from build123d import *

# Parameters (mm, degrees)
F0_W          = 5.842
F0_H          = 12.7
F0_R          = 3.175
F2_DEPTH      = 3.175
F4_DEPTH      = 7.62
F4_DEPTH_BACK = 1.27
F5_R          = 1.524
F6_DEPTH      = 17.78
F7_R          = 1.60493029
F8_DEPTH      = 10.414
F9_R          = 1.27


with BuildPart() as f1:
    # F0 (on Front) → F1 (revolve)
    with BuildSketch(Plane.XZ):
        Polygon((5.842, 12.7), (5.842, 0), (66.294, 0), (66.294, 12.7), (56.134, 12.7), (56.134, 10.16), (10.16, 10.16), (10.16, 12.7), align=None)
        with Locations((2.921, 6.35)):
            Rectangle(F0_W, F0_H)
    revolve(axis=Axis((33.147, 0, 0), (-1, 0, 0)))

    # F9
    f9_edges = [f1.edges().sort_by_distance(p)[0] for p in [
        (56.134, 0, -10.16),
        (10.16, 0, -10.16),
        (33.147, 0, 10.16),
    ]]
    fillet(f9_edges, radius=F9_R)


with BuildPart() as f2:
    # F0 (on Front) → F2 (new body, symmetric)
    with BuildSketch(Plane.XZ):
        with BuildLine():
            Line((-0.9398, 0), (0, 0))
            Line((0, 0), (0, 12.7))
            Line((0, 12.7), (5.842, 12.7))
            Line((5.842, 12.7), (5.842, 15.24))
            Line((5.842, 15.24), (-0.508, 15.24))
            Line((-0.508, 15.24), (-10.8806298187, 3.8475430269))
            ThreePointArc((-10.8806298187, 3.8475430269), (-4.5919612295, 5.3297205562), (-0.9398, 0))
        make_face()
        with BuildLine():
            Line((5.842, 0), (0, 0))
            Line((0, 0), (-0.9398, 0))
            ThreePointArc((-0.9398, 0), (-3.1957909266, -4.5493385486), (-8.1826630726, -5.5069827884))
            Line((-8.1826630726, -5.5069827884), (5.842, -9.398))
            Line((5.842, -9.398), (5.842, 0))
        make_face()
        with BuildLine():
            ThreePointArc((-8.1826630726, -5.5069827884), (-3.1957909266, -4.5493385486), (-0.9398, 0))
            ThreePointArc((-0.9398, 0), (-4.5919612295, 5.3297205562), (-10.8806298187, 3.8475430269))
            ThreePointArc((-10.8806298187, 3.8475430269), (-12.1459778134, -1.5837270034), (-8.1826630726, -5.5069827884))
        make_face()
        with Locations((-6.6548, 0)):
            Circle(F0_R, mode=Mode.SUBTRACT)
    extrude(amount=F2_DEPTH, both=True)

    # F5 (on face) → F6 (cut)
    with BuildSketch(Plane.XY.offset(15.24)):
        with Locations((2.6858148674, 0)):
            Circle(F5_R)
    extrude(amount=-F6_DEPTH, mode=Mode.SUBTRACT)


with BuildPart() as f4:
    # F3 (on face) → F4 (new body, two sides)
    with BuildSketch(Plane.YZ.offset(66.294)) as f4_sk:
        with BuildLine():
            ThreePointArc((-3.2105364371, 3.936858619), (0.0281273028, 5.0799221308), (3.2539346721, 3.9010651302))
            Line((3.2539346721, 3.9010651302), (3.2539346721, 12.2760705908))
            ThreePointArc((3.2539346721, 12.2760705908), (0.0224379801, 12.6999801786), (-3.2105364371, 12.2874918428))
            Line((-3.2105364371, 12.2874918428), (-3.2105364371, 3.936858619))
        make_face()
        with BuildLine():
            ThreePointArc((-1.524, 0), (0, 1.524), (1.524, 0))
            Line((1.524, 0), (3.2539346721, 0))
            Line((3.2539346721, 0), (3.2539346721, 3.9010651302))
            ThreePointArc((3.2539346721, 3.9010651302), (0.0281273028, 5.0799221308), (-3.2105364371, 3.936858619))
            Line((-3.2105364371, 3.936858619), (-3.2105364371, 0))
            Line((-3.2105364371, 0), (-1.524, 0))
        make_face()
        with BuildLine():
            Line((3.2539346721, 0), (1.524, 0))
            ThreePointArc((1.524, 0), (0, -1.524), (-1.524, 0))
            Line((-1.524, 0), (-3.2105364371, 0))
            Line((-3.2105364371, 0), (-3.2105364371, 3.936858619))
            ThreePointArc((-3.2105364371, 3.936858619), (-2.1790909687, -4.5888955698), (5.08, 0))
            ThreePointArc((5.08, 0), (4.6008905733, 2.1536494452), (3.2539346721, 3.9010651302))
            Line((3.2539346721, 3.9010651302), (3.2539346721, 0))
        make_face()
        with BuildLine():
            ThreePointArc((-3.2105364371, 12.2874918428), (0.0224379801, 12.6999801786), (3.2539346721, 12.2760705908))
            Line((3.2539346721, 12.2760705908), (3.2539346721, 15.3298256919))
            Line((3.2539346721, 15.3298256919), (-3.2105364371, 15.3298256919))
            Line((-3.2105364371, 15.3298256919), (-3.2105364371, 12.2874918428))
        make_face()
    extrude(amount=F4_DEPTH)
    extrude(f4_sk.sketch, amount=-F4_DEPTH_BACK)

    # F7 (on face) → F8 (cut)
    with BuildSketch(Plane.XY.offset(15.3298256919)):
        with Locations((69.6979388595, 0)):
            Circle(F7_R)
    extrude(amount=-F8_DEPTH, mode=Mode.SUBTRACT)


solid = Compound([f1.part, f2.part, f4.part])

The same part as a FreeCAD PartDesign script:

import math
import FreeCAD as App
import Part
import Sketcher
Q = App.Units.Quantity


def edges_at(feature, points):
    """Names of the edges that pass closest to the given points."""
    edges = feature.Shape.Edges
    near = lambda p: min(range(len(edges)), key=lambda i: edges[i].distToShape(Part.Vertex(*p))[0])
    return sorted({f"Edge{near(p) + 1}" for p in points})

doc = App.newDocument("Part")
body = doc.addObject("PartDesign::Body", "Body")

# Sketch on XZ plane
sketch1 = body.newObject("Sketcher::SketchObject", "Sketch")
sketch1.AttachmentSupport = (doc.getObject("XZ_Plane"), [""])
sketch1.MapMode = "FlatFace"
sketch1.addGeometry([
    Part.LineSegment(App.Vector(66.3, 0, 0), App.Vector(66.3, 12.7, 0)),  # 0
    Part.LineSegment(App.Vector(66.3, 12.7, 0), App.Vector(56.1, 12.7, 0)),  # 1
    Part.LineSegment(App.Vector(56.1, 12.7, 0), App.Vector(56.1, 10.2, 0)),  # 2
    Part.LineSegment(App.Vector(56.1, 10.2, 0), App.Vector(10.2, 10.2, 0)),  # 3
    Part.LineSegment(App.Vector(10.2, 10.2, 0), App.Vector(10.2, 12.7, 0)),  # 4
    Part.LineSegment(App.Vector(10.2, 12.7, 0), App.Vector(0, 12.7, 0)),  # 5
    Part.LineSegment(App.Vector(0, 12.7, 0), App.Vector(0, 0, 0)),  # 6
    Part.LineSegment(App.Vector(0, 0, 0), App.Vector(66.3, 0, 0)),  # 7
], False)
sketch1.addConstraint([
    Sketcher.Constraint("Coincident", 0, 2, 1, 1),
    Sketcher.Constraint("Coincident", 1, 2, 2, 1),
    Sketcher.Constraint("Coincident", 2, 2, 3, 1),
    Sketcher.Constraint("Coincident", 3, 2, 4, 1),
    Sketcher.Constraint("Coincident", 4, 2, 5, 1),
    Sketcher.Constraint("Coincident", 5, 2, 6, 1),
    Sketcher.Constraint("Coincident", 6, 2, 7, 1),
    Sketcher.Constraint("Coincident", 7, 2, 0, 1),
    Sketcher.Constraint("Vertical", 0),
    Sketcher.Constraint("Horizontal", 1),
    Sketcher.Constraint("Vertical", 2),
    Sketcher.Constraint("Horizontal", 3),
    Sketcher.Constraint("Vertical", 4),
    Sketcher.Constraint("Horizontal", 5),
    Sketcher.Constraint("Vertical", 6),
    Sketcher.Constraint("Horizontal", 7),
    Sketcher.Constraint("Coincident", 6, 2, -1, 1),
    Sketcher.Constraint("Horizontal", 1, 2, 4, 2),
    Sketcher.Constraint("Equal", 1, 5),
    Sketcher.Constraint("DistanceX", 1, 2, 1, 1, Q("0.4 in")),
    Sketcher.Constraint("DistanceY", 0, 1, 0, 2, Q("0.5 in")),
    Sketcher.Constraint("DistanceY", 2, 2, 2, 1, Q("0.1 in")),
    Sketcher.Constraint("DistanceX", 3, 2, 3, 1, Q("1.81 in")),
])
revolution = body.newObject("PartDesign::Revolution", "Revolution")
revolution.Profile = sketch1
revolution.ReferenceAxis = (sketch1, ["H_Axis"])
revolution.Angle = 360
doc.recompute()

fillet = body.newObject("PartDesign::Fillet", "Fillet")
fillet.Base = (revolution, edges_at(revolution, [(56.134, 0, -10.16), (10.16, 0, -10.16), (33.147, 0, 10.16)]))
fillet.Radius = Q("0.05 in")
body2 = doc.addObject("PartDesign::Body", "Body001")

# Sketch on XZ plane
sketch2 = body2.newObject("Sketcher::SketchObject", "Sketch001")
sketch2.AttachmentSupport = (doc.getObject("XZ_Plane001"), [""])
sketch2.MapMode = "FlatFace"
sketch2.addGeometry([
    Part.LineSegment(App.Vector(0, 0, 0), App.Vector(0, 12.7, 0)),  # 0
    Part.LineSegment(App.Vector(0, 12.7, 0), App.Vector(5.8, 12.7, 0)),  # 1
    Part.LineSegment(App.Vector(5.8, 12.7, 0), App.Vector(5.8, 15.2, 0)),  # 2
    Part.LineSegment(App.Vector(5.8, 15.2, 0), App.Vector(-0.5, 15.2, 0)),  # 3
    Part.LineSegment(App.Vector(-0.5, 15.2, 0), App.Vector(-10.9, 3.8, 0)),  # 4
    Part.ArcOfCircle(Part.Circle(App.Vector(-6.7, 0, 0), App.Vector(0, 0, 1), 5.7), math.radians(138), math.radians(254)),  # 5
    Part.LineSegment(App.Vector(-8.2, -5.5, 0), App.Vector(5.8, -9.4, 0)),  # 6
    Part.LineSegment(App.Vector(5.8, -9.4, 0), App.Vector(5.8, 0, 0)),  # 7
    Part.LineSegment(App.Vector(5.8, 0, 0), App.Vector(0, 0, 0)),  # 8
    Part.Circle(App.Vector(-6.7, 0, 0), App.Vector(0, 0, 1), 3.2),  # 9
], False)
sketch2.addConstraint([
    Sketcher.Constraint("Coincident", 0, 2, 1, 1),
    Sketcher.Constraint("Coincident", 1, 2, 2, 1),
    Sketcher.Constraint("Coincident", 2, 2, 3, 1),
    Sketcher.Constraint("Coincident", 3, 2, 4, 1),
    Sketcher.Constraint("Tangent", 4, 2, 5, 1),
    Sketcher.Constraint("Tangent", 5, 2, 6, 1),
    Sketcher.Constraint("Coincident", 6, 2, 7, 1),
    Sketcher.Constraint("Coincident", 7, 2, 8, 1),
    Sketcher.Constraint("Coincident", 8, 2, 0, 1),
    Sketcher.Constraint("Vertical", 0),
    Sketcher.Constraint("Horizontal", 1),
    Sketcher.Constraint("Vertical", 2),
    Sketcher.Constraint("Horizontal", 3),
    Sketcher.Constraint("Vertical", 7),
    Sketcher.Constraint("Horizontal", 8),
    Sketcher.Constraint("Coincident", 8, 2, -1, 1),
    Sketcher.Constraint("Coincident", 9, 3, 5, 3),
    Sketcher.Constraint("PointOnObject", 5, 3, -1),
    Sketcher.Constraint("Vertical", 2, 2, 6, 2),
    Sketcher.Constraint("Diameter", 9, Q("0.25 in")),
    Sketcher.Constraint("DistanceY", 0, 1, 0, 2, Q("0.5 in")),
    Sketcher.Constraint("DistanceY", 2, 1, 2, 2, Q("0.1 in")),
    Sketcher.Constraint("Radius", 5, Q("0.225 in")),
    Sketcher.Constraint("DistanceX", 1, 1, 1, 2, Q("0.23 in")),
    Sketcher.Constraint("DistanceX", 3, 2, 3, 1, Q("0.25 in")),
    Sketcher.Constraint("DistanceY", 7, 1, 7, 2, Q("0.37 in")),
    Sketcher.Constraint("DistanceX", 5, 3, -1, 1, Q("0.262 in")),
])
pad1 = body2.newObject("PartDesign::Pad", "Pad")
pad1.Profile = sketch2
pad1.Length = Q("0.25 in")
pad1.Midplane = True

# Sketch on XY plane
sketch3 = body2.newObject("Sketcher::SketchObject", "Sketch002")
sketch3.AttachmentSupport = (doc.getObject("XY_Plane001"), [""])
sketch3.MapMode = "FlatFace"
sketch3.AttachmentOffset = App.Placement(App.Vector(0, 0, 0.6 * 25.4), App.Rotation())
sketch3.addGeometry(Part.Circle(App.Vector(2.7, 0, 0), App.Vector(0, 0, 1), 1.5), False)
sketch3.addConstraint([
    Sketcher.Constraint("PointOnObject", 0, 3, -1),
    Sketcher.Constraint("Diameter", 0, Q("0.12 in")),
    Sketcher.Constraint("DistanceX", -1, 1, 0, 3, 2.685815),
])
pocket1 = body2.newObject("PartDesign::Pocket", "Pocket")
pocket1.Profile = sketch3
pocket1.Length = Q("0.7 in")
body3 = doc.addObject("PartDesign::Body", "Body002")

# Sketch on YZ plane
sketch4 = body3.newObject("Sketcher::SketchObject", "Sketch003")
sketch4.AttachmentSupport = (doc.getObject("YZ_Plane002"), [""])
sketch4.MapMode = "FlatFace"
sketch4.AttachmentOffset = App.Placement(App.Vector(0, 0, 2.61 * 25.4), App.Rotation())
sketch4.addGeometry([
    Part.ArcOfCircle(Part.Circle(App.Vector(0, 0, 0), App.Vector(0, 0, 1), 5.1), math.radians(129), math.radians(360)),  # 0
    Part.ArcOfCircle(Part.Circle(App.Vector(0, 0, 0), App.Vector(0, 0, 1), 5.1), math.radians(0), math.radians(50)),  # 1
    Part.LineSegment(App.Vector(3.3, 3.9, 0), App.Vector(3.3, 15.3, 0)),  # 2
    Part.LineSegment(App.Vector(3.3, 15.3, 0), App.Vector(-3.2, 15.3, 0)),  # 3
    Part.LineSegment(App.Vector(-3.2, 15.3, 0), App.Vector(-3.2, 3.9, 0)),  # 4
    Part.Circle(App.Vector(0, 0, 0), App.Vector(0, 0, 1), 1.5),  # 5
], False)
sketch4.addConstraint([
    Sketcher.Constraint("Tangent", 0, 2, 1, 1),
    Sketcher.Constraint("Coincident", 1, 2, 2, 1),
    Sketcher.Constraint("Coincident", 2, 2, 3, 1),
    Sketcher.Constraint("Coincident", 3, 2, 4, 1),
    Sketcher.Constraint("Coincident", 4, 2, 0, 1),
    Sketcher.Constraint("Vertical", 2),
    Sketcher.Constraint("Horizontal", 3),
    Sketcher.Constraint("Vertical", 4),
    Sketcher.Constraint("Coincident", 0, 3, -1, 1),
    Sketcher.Constraint("Coincident", 5, 3, -1, 1),
    Sketcher.Constraint("Equal", 0, 1),
    Sketcher.Constraint("PointOnObject", 0, 2, -1),
    Sketcher.Constraint("Radius", 0, Q("0.2 in")),
    Sketcher.Constraint("Diameter", 5, Q("0.12 in")),
    Sketcher.Constraint("DistanceX", 3, 2, 3, 1, 6.464471),
    Sketcher.Constraint("DistanceY", 2, 1, 2, 2, 11.428761),
    Sketcher.Constraint("DistanceY", 4, 2, 4, 1, 11.392967),
])
pad2 = body3.newObject("PartDesign::Pad", "Pad001")
pad2.Profile = sketch4
pad2.Type = "TwoLengths"
pad2.Length = Q("0.3 in")
pad2.Length2 = Q("0.05 in")

# Sketch on XY plane
sketch5 = body3.newObject("Sketcher::SketchObject", "Sketch004")
sketch5.AttachmentSupport = (doc.getObject("XY_Plane002"), [""])
sketch5.MapMode = "FlatFace"
sketch5.AttachmentOffset = App.Placement(App.Vector(0, 0, 15.329826), App.Rotation())
sketch5.addGeometry(Part.Circle(App.Vector(69.7, 0, 0), App.Vector(0, 0, 1), 1.6), False)
sketch5.addConstraint([
    Sketcher.Constraint("PointOnObject", 0, 3, -1),
    Sketcher.Constraint("Diameter", 0, 3.209861),
    Sketcher.Constraint("DistanceX", -1, 1, 0, 3, 69.697939),
])
pocket2 = body3.newObject("PartDesign::Pocket", "Pocket001")
pocket2.Profile = sketch5
pocket2.Length = Q("0.41 in")

doc.recompute()
